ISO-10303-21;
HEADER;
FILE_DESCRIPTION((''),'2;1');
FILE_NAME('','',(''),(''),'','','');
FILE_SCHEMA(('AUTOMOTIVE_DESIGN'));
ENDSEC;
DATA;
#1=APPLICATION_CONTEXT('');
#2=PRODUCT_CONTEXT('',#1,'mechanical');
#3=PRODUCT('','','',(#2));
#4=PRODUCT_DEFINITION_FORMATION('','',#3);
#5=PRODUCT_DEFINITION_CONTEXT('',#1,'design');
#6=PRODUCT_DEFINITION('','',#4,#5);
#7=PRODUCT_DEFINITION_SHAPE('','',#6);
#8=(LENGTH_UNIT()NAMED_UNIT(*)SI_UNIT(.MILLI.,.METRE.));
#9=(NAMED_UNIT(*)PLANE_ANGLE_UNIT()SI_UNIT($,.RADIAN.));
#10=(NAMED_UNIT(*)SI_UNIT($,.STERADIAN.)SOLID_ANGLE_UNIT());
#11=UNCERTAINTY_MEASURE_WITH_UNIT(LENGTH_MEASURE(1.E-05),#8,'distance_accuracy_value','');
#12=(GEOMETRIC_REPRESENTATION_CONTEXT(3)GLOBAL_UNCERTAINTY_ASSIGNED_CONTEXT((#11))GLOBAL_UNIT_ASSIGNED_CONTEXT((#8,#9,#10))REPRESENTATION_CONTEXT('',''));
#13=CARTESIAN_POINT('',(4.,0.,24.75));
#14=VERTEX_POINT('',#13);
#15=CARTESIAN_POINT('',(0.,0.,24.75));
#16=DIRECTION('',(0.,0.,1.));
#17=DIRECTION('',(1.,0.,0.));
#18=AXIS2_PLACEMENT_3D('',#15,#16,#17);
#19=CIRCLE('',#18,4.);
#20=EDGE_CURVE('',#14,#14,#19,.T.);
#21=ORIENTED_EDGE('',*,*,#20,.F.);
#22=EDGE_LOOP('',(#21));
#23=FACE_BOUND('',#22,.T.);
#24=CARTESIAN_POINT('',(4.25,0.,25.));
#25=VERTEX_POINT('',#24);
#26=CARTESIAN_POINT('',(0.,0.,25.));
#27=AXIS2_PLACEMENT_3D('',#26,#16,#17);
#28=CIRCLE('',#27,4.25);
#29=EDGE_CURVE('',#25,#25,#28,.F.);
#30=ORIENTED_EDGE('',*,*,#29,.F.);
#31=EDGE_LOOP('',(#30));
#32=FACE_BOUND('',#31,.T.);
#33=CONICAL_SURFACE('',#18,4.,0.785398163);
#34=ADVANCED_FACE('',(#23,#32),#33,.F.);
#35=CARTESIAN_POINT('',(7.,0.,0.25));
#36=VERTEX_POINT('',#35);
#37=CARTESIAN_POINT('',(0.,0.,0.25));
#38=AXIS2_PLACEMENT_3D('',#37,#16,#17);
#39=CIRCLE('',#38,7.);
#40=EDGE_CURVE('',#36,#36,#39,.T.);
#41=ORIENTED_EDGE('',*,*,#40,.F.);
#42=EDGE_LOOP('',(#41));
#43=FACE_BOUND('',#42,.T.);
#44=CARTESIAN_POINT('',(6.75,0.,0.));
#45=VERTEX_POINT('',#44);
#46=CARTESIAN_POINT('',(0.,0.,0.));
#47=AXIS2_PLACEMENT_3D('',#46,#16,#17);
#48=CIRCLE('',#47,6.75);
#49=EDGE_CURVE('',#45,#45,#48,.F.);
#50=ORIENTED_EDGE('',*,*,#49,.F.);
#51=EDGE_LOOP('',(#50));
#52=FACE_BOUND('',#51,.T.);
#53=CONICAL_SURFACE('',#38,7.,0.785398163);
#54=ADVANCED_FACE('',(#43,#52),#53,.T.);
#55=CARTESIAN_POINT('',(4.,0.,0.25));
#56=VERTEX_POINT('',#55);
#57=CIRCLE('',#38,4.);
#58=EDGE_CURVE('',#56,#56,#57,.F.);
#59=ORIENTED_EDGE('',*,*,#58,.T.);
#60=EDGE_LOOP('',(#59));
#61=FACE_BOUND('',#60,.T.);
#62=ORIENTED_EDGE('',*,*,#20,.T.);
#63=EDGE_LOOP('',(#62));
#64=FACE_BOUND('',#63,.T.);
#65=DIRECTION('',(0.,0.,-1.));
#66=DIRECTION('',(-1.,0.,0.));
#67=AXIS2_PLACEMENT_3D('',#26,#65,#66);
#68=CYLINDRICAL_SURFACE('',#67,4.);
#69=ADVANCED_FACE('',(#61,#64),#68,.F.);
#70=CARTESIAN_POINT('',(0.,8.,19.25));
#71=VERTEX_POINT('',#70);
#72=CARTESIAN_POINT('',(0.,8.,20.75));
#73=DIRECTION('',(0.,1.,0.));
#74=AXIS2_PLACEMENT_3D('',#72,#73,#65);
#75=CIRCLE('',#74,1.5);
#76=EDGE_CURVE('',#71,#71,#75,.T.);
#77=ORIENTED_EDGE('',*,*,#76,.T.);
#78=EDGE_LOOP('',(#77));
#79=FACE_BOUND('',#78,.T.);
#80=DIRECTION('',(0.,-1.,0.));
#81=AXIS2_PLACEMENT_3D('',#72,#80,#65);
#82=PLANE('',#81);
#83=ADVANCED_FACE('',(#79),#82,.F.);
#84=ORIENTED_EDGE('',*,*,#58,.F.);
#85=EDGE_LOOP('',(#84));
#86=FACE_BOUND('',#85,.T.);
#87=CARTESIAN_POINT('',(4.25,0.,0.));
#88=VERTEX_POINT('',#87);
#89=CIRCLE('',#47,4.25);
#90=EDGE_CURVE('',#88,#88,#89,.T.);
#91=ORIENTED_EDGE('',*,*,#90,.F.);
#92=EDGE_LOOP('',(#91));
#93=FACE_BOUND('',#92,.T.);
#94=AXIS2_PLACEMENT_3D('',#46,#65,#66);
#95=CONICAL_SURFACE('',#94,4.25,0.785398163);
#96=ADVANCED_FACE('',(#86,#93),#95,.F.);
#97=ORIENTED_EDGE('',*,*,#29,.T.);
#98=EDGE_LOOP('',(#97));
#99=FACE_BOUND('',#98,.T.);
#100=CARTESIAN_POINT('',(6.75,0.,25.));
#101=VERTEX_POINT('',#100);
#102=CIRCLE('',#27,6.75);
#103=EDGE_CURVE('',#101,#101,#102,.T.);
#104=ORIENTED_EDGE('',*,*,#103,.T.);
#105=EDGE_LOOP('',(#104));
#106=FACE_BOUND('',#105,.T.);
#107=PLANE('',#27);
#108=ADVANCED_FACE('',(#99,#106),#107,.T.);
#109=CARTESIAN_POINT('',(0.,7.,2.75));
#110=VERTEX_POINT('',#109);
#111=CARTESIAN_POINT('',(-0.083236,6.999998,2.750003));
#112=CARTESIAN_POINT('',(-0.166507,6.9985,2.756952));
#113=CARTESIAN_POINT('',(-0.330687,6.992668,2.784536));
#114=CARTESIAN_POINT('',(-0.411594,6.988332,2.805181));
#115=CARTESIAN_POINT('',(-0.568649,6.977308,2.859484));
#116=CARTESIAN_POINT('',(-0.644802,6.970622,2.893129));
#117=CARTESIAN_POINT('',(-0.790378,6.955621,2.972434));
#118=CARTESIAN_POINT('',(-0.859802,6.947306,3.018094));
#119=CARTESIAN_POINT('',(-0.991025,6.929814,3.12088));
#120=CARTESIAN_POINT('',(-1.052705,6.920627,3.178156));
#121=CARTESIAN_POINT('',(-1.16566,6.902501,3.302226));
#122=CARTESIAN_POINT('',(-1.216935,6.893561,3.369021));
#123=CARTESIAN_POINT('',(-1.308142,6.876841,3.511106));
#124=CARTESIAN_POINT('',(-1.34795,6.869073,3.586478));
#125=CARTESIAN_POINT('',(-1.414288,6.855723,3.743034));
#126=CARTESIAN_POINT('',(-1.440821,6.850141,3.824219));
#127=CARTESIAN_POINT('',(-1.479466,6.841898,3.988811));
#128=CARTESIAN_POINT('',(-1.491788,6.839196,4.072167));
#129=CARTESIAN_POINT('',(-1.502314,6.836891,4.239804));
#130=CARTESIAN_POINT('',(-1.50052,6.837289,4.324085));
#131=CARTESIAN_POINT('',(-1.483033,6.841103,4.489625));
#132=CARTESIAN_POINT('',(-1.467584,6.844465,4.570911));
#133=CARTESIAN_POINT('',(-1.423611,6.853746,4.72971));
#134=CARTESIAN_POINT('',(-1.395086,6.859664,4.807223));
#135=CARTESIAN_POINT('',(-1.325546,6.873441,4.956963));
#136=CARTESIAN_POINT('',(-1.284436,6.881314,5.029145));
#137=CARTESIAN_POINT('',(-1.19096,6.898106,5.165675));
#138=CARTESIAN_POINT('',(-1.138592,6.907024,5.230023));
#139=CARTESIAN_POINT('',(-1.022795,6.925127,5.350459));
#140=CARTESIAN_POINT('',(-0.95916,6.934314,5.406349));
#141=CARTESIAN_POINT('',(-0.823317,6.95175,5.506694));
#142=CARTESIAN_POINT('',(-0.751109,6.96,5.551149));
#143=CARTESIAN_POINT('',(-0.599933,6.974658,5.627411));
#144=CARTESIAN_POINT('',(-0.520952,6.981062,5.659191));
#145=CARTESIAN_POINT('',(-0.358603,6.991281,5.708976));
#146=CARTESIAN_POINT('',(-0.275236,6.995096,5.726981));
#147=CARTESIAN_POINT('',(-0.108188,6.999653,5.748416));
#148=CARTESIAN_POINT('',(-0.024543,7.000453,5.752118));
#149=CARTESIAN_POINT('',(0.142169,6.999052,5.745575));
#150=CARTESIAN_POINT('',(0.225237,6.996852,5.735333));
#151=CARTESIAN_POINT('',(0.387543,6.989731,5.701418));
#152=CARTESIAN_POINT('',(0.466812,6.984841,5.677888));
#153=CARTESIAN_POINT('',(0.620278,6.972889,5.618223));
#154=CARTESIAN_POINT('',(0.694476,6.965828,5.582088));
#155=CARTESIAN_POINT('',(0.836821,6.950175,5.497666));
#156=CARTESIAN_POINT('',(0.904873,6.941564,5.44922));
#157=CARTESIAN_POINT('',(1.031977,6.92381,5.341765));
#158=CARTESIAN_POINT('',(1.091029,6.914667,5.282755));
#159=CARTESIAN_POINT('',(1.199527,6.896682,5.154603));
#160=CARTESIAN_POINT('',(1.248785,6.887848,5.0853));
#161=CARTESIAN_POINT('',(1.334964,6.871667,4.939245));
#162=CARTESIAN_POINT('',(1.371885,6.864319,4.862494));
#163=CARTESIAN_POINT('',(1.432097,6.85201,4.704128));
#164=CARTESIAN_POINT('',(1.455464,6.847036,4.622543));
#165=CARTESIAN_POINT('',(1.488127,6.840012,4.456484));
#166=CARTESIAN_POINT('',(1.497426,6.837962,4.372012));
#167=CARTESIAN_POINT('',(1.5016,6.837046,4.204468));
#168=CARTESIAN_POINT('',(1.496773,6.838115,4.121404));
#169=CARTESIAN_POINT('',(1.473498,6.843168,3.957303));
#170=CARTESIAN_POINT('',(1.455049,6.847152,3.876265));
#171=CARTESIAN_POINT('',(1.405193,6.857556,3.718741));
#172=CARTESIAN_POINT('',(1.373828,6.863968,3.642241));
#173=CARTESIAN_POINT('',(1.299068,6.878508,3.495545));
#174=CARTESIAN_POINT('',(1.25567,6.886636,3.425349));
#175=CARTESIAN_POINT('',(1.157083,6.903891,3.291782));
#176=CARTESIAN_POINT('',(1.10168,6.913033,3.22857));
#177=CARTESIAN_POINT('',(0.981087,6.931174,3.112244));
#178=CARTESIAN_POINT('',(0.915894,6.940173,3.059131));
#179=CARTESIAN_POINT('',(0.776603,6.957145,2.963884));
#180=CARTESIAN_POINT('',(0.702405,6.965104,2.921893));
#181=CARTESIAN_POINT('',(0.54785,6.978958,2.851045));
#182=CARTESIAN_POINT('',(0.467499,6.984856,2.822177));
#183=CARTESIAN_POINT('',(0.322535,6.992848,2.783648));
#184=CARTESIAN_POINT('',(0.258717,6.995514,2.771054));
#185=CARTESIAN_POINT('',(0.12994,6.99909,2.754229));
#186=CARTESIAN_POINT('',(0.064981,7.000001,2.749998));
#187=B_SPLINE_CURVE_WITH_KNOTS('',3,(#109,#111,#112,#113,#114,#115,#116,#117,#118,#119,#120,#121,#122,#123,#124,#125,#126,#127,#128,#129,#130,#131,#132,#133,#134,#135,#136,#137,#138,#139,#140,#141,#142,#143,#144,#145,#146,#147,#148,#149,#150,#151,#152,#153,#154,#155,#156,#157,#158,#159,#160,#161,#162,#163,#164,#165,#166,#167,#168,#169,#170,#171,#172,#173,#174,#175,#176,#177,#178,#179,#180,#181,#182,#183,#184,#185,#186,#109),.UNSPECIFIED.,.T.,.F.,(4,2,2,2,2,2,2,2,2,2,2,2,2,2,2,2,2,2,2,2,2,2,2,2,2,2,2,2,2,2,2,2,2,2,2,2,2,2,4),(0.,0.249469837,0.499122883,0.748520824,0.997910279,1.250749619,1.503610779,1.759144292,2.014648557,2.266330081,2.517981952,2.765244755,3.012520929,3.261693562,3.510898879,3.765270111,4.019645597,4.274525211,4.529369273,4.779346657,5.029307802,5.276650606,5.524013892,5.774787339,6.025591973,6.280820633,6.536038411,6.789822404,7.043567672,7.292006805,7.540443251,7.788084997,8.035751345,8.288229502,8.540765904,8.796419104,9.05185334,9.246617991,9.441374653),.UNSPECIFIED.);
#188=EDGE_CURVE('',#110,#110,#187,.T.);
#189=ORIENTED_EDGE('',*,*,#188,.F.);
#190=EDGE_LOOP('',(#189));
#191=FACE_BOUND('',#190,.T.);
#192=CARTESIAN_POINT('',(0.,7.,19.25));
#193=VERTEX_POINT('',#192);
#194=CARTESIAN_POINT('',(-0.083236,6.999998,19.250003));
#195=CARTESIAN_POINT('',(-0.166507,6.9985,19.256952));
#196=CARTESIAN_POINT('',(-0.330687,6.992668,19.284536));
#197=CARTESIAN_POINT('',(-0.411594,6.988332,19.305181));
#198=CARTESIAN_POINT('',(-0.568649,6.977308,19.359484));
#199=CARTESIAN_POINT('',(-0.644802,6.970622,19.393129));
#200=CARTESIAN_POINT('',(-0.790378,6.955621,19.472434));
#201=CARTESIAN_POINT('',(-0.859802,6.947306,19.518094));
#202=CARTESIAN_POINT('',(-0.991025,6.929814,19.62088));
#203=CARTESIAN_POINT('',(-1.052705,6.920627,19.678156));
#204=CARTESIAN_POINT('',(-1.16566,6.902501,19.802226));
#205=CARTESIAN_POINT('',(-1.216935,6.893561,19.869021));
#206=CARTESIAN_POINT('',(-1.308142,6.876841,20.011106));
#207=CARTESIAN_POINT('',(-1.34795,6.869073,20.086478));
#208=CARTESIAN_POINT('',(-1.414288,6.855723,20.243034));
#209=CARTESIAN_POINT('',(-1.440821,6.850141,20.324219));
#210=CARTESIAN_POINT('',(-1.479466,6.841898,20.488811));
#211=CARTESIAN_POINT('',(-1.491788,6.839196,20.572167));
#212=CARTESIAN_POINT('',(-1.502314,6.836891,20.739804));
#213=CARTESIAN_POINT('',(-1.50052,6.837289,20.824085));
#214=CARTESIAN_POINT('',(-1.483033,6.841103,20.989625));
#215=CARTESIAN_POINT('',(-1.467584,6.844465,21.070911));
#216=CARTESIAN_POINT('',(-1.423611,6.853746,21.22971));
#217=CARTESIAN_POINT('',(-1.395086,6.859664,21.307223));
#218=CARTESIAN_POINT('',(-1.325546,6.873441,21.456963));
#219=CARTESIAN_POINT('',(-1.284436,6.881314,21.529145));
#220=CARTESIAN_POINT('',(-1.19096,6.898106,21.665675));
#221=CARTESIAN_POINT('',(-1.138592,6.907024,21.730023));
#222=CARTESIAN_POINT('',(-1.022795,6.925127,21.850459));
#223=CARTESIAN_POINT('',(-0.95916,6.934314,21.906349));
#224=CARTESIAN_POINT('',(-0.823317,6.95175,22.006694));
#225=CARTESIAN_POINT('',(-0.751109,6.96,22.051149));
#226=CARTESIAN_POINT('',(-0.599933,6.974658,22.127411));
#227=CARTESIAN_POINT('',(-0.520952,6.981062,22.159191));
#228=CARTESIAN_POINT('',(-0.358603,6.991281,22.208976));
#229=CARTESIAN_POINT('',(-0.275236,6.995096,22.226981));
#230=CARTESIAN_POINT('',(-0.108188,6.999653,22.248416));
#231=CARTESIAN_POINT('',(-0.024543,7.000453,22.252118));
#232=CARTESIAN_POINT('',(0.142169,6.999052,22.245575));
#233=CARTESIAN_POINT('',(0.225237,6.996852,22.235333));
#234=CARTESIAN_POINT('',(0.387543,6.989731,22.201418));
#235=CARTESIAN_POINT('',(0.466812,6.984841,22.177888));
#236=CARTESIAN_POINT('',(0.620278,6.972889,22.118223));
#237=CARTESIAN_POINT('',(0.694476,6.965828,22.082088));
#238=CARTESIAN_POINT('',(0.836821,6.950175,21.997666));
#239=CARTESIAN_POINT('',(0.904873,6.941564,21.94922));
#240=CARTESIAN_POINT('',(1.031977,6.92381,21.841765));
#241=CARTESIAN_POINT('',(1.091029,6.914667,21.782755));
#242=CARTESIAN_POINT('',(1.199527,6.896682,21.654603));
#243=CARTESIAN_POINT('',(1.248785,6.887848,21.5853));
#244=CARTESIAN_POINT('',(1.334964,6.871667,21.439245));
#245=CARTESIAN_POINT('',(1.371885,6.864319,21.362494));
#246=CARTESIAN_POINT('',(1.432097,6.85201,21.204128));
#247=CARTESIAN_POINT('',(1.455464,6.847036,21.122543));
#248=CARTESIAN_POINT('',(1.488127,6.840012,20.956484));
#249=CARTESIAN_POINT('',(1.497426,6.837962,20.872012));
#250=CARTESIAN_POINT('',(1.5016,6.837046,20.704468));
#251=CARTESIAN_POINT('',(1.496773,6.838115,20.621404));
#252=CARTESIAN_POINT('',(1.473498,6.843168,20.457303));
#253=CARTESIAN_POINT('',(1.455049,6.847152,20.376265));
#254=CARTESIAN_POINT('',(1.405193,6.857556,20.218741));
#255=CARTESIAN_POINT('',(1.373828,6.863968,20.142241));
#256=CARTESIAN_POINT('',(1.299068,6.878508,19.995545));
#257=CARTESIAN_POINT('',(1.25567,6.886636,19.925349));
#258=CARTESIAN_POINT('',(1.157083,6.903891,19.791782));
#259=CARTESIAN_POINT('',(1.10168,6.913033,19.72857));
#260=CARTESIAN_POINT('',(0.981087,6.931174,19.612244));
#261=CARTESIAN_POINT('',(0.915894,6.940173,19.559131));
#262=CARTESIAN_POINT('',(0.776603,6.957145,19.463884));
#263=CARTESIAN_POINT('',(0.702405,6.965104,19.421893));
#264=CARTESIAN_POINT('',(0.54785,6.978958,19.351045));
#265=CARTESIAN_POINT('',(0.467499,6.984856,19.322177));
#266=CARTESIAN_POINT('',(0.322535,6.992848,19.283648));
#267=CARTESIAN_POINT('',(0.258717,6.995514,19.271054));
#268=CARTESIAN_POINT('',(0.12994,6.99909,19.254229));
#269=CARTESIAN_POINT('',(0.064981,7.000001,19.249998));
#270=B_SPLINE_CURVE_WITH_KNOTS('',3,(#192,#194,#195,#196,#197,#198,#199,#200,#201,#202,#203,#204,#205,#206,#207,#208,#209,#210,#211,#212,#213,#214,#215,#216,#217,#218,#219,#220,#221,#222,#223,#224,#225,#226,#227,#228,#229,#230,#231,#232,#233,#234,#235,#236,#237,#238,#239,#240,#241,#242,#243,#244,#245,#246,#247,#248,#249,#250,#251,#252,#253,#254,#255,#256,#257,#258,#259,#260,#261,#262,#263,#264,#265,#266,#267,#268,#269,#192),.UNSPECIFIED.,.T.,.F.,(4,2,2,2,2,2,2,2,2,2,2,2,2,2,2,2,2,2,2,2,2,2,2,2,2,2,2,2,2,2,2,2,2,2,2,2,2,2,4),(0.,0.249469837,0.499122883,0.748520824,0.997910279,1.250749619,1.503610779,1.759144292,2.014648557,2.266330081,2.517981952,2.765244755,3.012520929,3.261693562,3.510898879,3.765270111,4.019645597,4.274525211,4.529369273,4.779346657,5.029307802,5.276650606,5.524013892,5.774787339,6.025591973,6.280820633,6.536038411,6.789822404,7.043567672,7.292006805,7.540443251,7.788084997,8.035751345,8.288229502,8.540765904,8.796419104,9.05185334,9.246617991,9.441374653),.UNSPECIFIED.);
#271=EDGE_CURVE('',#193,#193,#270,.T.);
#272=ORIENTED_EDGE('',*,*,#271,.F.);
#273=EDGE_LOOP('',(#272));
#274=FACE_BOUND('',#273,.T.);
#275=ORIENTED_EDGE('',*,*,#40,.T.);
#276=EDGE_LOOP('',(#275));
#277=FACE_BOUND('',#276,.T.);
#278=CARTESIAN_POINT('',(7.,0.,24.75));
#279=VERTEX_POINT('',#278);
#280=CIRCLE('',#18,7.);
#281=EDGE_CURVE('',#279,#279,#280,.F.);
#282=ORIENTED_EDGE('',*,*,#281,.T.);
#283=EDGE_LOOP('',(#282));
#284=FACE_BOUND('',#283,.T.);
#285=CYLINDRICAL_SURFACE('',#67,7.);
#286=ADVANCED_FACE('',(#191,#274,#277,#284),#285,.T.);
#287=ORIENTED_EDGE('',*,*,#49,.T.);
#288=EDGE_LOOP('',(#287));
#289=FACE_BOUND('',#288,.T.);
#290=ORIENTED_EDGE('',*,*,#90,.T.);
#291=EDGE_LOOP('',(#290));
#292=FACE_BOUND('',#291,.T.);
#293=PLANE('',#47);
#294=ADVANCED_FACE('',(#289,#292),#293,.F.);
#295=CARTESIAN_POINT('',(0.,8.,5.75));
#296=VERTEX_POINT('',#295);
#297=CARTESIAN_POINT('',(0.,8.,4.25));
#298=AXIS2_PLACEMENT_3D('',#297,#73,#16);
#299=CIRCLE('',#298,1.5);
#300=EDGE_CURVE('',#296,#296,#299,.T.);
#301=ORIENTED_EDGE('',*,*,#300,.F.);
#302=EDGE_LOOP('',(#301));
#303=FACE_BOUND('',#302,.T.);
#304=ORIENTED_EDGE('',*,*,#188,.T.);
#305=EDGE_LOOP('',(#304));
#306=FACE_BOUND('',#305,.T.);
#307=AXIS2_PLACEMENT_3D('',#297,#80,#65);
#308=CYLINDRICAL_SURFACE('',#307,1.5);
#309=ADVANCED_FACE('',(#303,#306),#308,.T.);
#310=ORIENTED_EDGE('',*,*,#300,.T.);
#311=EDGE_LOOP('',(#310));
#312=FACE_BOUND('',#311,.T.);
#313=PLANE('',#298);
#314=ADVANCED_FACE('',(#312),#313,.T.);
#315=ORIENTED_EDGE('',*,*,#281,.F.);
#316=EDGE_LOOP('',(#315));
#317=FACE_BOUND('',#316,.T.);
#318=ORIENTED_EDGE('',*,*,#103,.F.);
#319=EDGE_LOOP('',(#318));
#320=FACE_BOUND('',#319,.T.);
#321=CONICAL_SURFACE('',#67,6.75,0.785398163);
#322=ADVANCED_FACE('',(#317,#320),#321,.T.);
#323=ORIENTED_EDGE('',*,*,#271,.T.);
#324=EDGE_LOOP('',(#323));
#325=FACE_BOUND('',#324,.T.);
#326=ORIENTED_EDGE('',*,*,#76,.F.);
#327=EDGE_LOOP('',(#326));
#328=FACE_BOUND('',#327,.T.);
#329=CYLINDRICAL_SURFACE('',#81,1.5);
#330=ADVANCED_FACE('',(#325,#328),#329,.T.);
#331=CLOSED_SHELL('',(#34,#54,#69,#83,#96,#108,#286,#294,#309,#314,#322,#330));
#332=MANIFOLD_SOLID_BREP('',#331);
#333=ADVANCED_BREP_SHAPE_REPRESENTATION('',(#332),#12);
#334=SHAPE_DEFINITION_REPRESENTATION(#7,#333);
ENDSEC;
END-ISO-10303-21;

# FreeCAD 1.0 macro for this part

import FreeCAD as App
import Part
import Sketcher
from FreeCAD import Vector


def edges_at(feature, points):
    """Names of the edges that pass closest to the given points."""
    edges = feature.Shape.Edges
    near = lambda p: min(range(len(edges)), key=lambda i: edges[i].distToShape(Part.Vertex(*p))[0])
    return sorted({f"Edge{near(p) + 1}" for p in points})

doc = App.newDocument("Part")
body = doc.addObject("PartDesign::Body", "Body")

sketch1 = body.newObject("Sketcher::SketchObject", "Sketch")
sketch1.AttachmentSupport = (doc.getObject("XY_Plane"), [""])
sketch1.MapMode = "FlatFace"
sketch1.addGeometry([
    Part.Circle(Vector(0, 0, 0), Vector(0, 0, 1), 7),
    Part.Circle(Vector(0, 0, 0), Vector(0, 0, 1), 4),
], False)
sketch1.addConstraint([
    Sketcher.Constraint("Coincident", 0, 3, -1, 1),
    Sketcher.Constraint("Coincident", 1, 3, -1, 1),
    Sketcher.Constraint("Diameter", 0, 14.0),
    Sketcher.Constraint("Diameter", 1, 8.0),
])
pad1 = body.newObject("PartDesign::Pad", "Pad")
pad1.Profile = sketch1
pad1.Length = 25
doc.recompute()

chamfer = body.newObject("PartDesign::Chamfer", "Chamfer")
chamfer.Base = (pad1, edges_at(pad1, [
    (-7, 0, 0),
    (-7, 0, 25),
    (-4, 0, 0),
    (-4, 0, 25),
]))
chamfer.Size = 0.25

sketch2 = body.newObject("Sketcher::SketchObject", "Sketch001")
sketch2.AttachmentSupport = (doc.getObject("XZ_Plane"), [""])
sketch2.MapMode = "FlatFace"
sketch2.AttachmentOffset = App.Placement(Vector(0, 0, -5), App.Rotation())
sketch2.addGeometry([
    Part.Circle(Vector(0, 4.2, 0), Vector(0, 0, 1), 1.5),
    Part.Circle(Vector(0, 20.8, 0), Vector(0, 0, 1), 1.5),
], False)
sketch2.addConstraint([
    Sketcher.Constraint("Equal", 0, 1),
    Sketcher.Constraint("PointOnObject", 0, 3, -2),
    Sketcher.Constraint("PointOnObject", 1, 3, -2),
    Sketcher.Constraint("Diameter", 0, 3.0),
    Sketcher.Constraint("DistanceY", 0, 3, 1, 3, 16.5),
    Sketcher.Constraint("DistanceY", -1, 1, 0, 3, 4.25),
])
pad2 = body.newObject("PartDesign::Pad", "Pad001")
pad2.Profile = sketch2
pad2.Length = 3
pad2.Reversed = True

doc.recompute()
